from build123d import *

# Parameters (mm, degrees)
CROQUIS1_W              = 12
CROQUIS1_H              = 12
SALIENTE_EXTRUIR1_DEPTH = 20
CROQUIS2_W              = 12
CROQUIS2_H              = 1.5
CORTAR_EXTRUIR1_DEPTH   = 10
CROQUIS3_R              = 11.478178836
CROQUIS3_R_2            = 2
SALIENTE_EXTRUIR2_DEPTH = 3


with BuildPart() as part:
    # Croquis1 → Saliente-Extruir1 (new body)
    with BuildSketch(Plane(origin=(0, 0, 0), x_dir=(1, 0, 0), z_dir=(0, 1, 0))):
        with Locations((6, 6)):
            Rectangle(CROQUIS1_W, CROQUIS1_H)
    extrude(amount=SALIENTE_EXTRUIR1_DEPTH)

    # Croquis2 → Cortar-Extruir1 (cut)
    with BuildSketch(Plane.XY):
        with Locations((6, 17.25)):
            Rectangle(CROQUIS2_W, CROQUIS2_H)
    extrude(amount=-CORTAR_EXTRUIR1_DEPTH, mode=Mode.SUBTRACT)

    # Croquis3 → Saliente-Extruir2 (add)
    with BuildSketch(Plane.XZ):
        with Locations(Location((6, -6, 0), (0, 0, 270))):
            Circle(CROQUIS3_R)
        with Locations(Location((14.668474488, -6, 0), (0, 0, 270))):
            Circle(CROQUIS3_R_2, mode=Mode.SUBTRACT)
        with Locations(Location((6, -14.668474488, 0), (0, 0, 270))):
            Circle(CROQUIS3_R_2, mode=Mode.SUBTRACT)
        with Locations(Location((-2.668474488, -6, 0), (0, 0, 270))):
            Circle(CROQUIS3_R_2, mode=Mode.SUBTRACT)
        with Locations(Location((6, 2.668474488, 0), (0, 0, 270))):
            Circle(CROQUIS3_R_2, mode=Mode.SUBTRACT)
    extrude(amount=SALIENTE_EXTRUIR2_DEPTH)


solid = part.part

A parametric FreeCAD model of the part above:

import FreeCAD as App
import Part
import Sketcher

V = App.Vector


def add_polygon(sketch, points):
    """Adds a closed chain of lines whose ends are joined by coincident constraints."""
    first, n = sketch.GeometryCount, len(points)
    for a, b in zip(points, points[1:] + points[:1]):
        sketch.addGeometry(Part.LineSegment(App.Vector(*a, 0), App.Vector(*b, 0)), False)
    for i in range(n):
        sketch.addConstraint(Sketcher.Constraint("Coincident", first + i, 2, first + (i + 1) % n, 1))

doc = App.newDocument("Part")
body = doc.addObject("PartDesign::Body", "Body")

# Sketch on XZ plane
sketch1 = body.newObject("Sketcher::SketchObject", "Sketch")
sketch1.AttachmentSupport = (doc.getObject("XZ_Plane"), [""])
sketch1.MapMode = "FlatFace"
add_polygon(sketch1, [(0, -12), (0, 0), (12, 0), (12, -12)])  # lines 0-3
sketch1.addConstraint([
    Sketcher.Constraint("Vertical", 0),
    Sketcher.Constraint("Horizontal", 1),
    Sketcher.Constraint("Vertical", 2),
    Sketcher.Constraint("Horizontal", 3),
    Sketcher.Constraint("Coincident", 0, 2, -1, 1),
    Sketcher.Constraint("Equal", 3, 0),
    Sketcher.Constraint("DistanceX", 1, 1, 1, 2, 12.0),
])
pad1 = body.newObject("PartDesign::Pad", "Pad")
pad1.Profile = sketch1
pad1.Length = 20
pad1.Reversed = True

# Sketch on XY plane
sketch2 = body.newObject("Sketcher::SketchObject", "Sketch001")
sketch2.AttachmentSupport = (doc.getObject("XY_Plane"), [""])
sketch2.MapMode = "FlatFace"
add_polygon(sketch2, [(0, 18), (0, 16.5), (12, 16.5), (12, 18)])  # lines 0-3
sketch2.addConstraint([
    Sketcher.Constraint("Vertical", 0),
    Sketcher.Constraint("Horizontal", 1),
    Sketcher.Constraint("Vertical", 2),
    Sketcher.Constraint("Horizontal", 3),
    Sketcher.Constraint("PointOnObject", 0, 2, -2),
    Sketcher.Constraint("DistanceX", 1, 1, 1, 2, 12.0),
    Sketcher.Constraint("DistanceY", 0, 2, 0, 1, 1.5),
    Sketcher.Constraint("DistanceY", -1, 1, 2, 2, 18.0),
])
pocket1 = body.newObject("PartDesign::Pocket", "Pocket")
pocket1.Profile = sketch2
pocket1.Length = 10

# Sketch on XZ plane
sketch3 = body.newObject("Sketcher::SketchObject", "Sketch002")
sketch3.AttachmentSupport = (doc.getObject("XZ_Plane"), [""])
sketch3.MapMode = "FlatFace"
sketch3.addGeometry([
    Part.Circle(V(6, -6, 0), V(0, 0, 1), 11.478179),  # 0
    Part.Circle(V(6, 2.668474, 0), V(0, 0, 1), 2),  # 1
    Part.Circle(V(-2.668474, -6, 0), V(0, 0, 1), 2),  # 2
    Part.Circle(V(14.668474, -6, 0), V(0, 0, 1), 2),  # 3
    Part.Circle(V(6, -14.668474, 0), V(0, 0, 1), 2),  # 4
], False)
sketch3.addConstraint([
    Sketcher.Constraint("Equal", 1, 2),
    Sketcher.Constraint("Equal", 2, 3),
    Sketcher.Constraint("Equal", 3, 4),
    Sketcher.Constraint("Horizontal", 0, 3, 2, 3),
    Sketcher.Constraint("Horizontal", 2, 3, 3, 3),
    Sketcher.Constraint("Vertical", 0, 3, 1, 3),
    Sketcher.Constraint("Vertical", 1, 3, 4, 3),
    Sketcher.Constraint("Diameter", 1, 4.0),
    Sketcher.Constraint("DistanceX", -1, 1, 0, 3, 6.0),
    Sketcher.Constraint("DistanceY", 0, 3, -1, 1, 6.0),
    Sketcher.Constraint("Diameter", 0, 22.956358),
    Sketcher.Constraint("DistanceX", 2, 3, 3, 3, 17.336949),
    Sketcher.Constraint("DistanceY", 4, 3, 1, 3, 17.336949),
    Sketcher.Constraint("DistanceY", -1, 1, 1, 3, 2.668474),
    Sketcher.Constraint("DistanceX", 2, 3, -1, 1, 2.668474),
])
pad2 = body.newObject("PartDesign::Pad", "Pad001")
pad2.Profile = sketch3
pad2.Length = 3

doc.recompute()
